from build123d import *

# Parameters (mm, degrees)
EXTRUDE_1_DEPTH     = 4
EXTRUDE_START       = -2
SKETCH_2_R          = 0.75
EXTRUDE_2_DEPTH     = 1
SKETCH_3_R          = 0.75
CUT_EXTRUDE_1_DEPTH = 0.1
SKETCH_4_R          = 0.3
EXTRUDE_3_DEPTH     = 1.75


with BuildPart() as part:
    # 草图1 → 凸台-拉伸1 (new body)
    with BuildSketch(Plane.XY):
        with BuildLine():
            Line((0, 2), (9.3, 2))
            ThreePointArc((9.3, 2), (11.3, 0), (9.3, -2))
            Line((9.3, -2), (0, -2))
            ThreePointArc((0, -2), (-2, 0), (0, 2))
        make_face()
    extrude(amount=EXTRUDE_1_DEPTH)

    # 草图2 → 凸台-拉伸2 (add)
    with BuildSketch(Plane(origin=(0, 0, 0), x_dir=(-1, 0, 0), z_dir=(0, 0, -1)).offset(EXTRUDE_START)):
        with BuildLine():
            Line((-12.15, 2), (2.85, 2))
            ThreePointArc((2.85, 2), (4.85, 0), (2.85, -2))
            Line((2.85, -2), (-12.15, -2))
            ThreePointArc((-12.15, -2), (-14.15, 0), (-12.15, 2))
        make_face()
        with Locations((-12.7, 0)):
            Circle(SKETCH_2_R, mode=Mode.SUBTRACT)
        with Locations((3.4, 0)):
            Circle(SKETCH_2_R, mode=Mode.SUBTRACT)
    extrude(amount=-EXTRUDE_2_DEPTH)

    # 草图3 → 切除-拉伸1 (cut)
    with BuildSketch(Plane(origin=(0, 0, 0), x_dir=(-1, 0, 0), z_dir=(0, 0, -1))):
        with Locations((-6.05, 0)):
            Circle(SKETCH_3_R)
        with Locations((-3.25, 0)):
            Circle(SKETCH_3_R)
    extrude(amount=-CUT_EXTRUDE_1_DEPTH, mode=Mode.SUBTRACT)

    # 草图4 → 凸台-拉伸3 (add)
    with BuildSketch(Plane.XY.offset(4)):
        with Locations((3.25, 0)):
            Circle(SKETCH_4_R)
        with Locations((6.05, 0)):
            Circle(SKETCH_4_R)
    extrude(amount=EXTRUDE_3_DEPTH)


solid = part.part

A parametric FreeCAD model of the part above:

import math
import FreeCAD as App
import Part
import Sketcher
Q = App.Units.Quantity

doc = App.newDocument("Part")
body = doc.addObject("PartDesign::Body", "Body")

# Sketch on XY plane
sketch1 = body.newObject("Sketcher::SketchObject", "Sketch")
sketch1.AttachmentSupport = (doc.getObject("XY_Plane"), [""])
sketch1.MapMode = "FlatFace"
sketch1.addGeometry(Part.LineSegment(App.Vector(9.3, 2, 0), App.Vector(0, 2, 0)), False)
sketch1.addGeometry(Part.ArcOfCircle(Part.Circle(App.Vector(0, 0, 0), App.Vector(0, 0, 1), 2), math.radians(90), math.radians(270)), False)
sketch1.addGeometry(Part.LineSegment(App.Vector(0, -2, 0), App.Vector(9.3, -2, 0)), False)
sketch1.addGeometry(Part.ArcOfCircle(Part.Circle(App.Vector(9.3, 0, 0), App.Vector(0, 0, 1), 2), math.radians(-90), math.radians(90)), False)
sketch1.addConstraint(Sketcher.Constraint("Tangent", 0, 2, 1, 1))
sketch1.addConstraint(Sketcher.Constraint("Tangent", 1, 2, 2, 1))
sketch1.addConstraint(Sketcher.Constraint("Tangent", 2, 2, 3, 1))
sketch1.addConstraint(Sketcher.Constraint("Tangent", 3, 2, 0, 1))
sketch1.addConstraint(Sketcher.Constraint("Horizontal", 0))
sketch1.addConstraint(Sketcher.Constraint("Horizontal", 2))
sketch1.addConstraint(Sketcher.Constraint("Coincident", 1, 3, -1, 1))
sketch1.addConstraint(Sketcher.Constraint("Radius", 1, Q("2 mm")))
sketch1.addConstraint(Sketcher.Constraint("DistanceX", 0, 2, 0, 1, Q("9.3 mm")))
pad1 = body.newObject("PartDesign::Pad", "Pad")
pad1.Profile = sketch1
pad1.Length = 4

# Sketch on XY plane
sketch2 = body.newObject("Sketcher::SketchObject", "Sketch001")
sketch2.AttachmentSupport = (doc.getObject("XY_Plane"), [""])
sketch2.MapMode = "FlatFace"
sketch2.AttachmentOffset = App.Placement(App.Vector(0, 0, 2), App.Rotation())
sketch2.addGeometry(Part.LineSegment(App.Vector(-2.9, 2, 0), App.Vector(12.2, 2, 0)), False)
sketch2.addGeometry(Part.ArcOfCircle(Part.Circle(App.Vector(12.2, 0, 0), App.Vector(0, 0, 1), 2), math.radians(-90), math.radians(90)), False)
sketch2.addGeometry(Part.LineSegment(App.Vector(12.2, -2, 0), App.Vector(-2.9, -2, 0)), False)
sketch2.addGeometry(Part.ArcOfCircle(Part.Circle(App.Vector(-2.9, 0, 0), App.Vector(0, 0, 1), 2), math.radians(90), math.radians(270)), False)
sketch2.addGeometry(Part.Circle(App.Vector(-3.4, 0, 0), App.Vector(0, 0, 1), 0.8), False)
sketch2.addGeometry(Part.Circle(App.Vector(12.7, 0, 0), App.Vector(0, 0, 1), 0.8), False)
sketch2.addConstraint(Sketcher.Constraint("Tangent", 0, 2, 1, 2))
sketch2.addConstraint(Sketcher.Constraint("Tangent", 1, 1, 2, 1))
sketch2.addConstraint(Sketcher.Constraint("Tangent", 2, 2, 3, 2))
sketch2.addConstraint(Sketcher.Constraint("Tangent", 3, 1, 0, 1))
sketch2.addConstraint(Sketcher.Constraint("Horizontal", 0))
sketch2.addConstraint(Sketcher.Constraint("Horizontal", 2))
sketch2.addConstraint(Sketcher.Constraint("Equal", 4, 5))
sketch2.addConstraint(Sketcher.Constraint("PointOnObject", 1, 3, -1))
sketch2.addConstraint(Sketcher.Constraint("PointOnObject", 4, 3, -1))
sketch2.addConstraint(Sketcher.Constraint("PointOnObject", 5, 3, -1))
sketch2.addConstraint(Sketcher.Constraint("Radius", 1, Q("2 mm")))
sketch2.addConstraint(Sketcher.Constraint("Diameter", 4, Q("1.5 mm")))
sketch2.addConstraint(Sketcher.Constraint("DistanceX", 0, 1, 0, 2, Q("15 mm")))
sketch2.addConstraint(Sketcher.Constraint("DistanceX", 4, 3, -1, 1, Q("3.4 mm")))
sketch2.addConstraint(Sketcher.Constraint("DistanceX", -1, 1, 5, 3, Q("12.7 mm")))
sketch2.addConstraint(Sketcher.Constraint("DistanceX", -1, 1, 1, 3, Q("12.15 mm")))
pad2 = body.newObject("PartDesign::Pad", "Pad001")
pad2.Profile = sketch2
pad2.Length = 1

# Sketch on XY plane
sketch3 = body.newObject("Sketcher::SketchObject", "Sketch002")
sketch3.AttachmentSupport = (doc.getObject("XY_Plane"), [""])
sketch3.MapMode = "FlatFace"
sketch3.addGeometry(Part.Circle(App.Vector(6, 0, 0), App.Vector(0, 0, 1), 0.8), False)
sketch3.addGeometry(Part.Circle(App.Vector(3.2, 0, 0), App.Vector(0, 0, 1), 0.8), False)
sketch3.addConstraint(Sketcher.Constraint("Equal", 0, 1))
sketch3.addConstraint(Sketcher.Constraint("PointOnObject", 0, 3, -1))
sketch3.addConstraint(Sketcher.Constraint("PointOnObject", 1, 3, -1))
sketch3.addConstraint(Sketcher.Constraint("Diameter", 0, Q("1.5 mm")))
sketch3.addConstraint(Sketcher.Constraint("DistanceX", 1, 3, 0, 3, Q("2.8 mm")))
sketch3.addConstraint(Sketcher.Constraint("DistanceX", -1, 1, 0, 3, Q("6.05 mm")))
pocket1 = body.newObject("PartDesign::Pocket", "Pocket")
pocket1.Profile = sketch3
pocket1.Length = 0.1
pocket1.Reversed = True

# Sketch on XY plane
sketch4 = body.newObject("Sketcher::SketchObject", "Sketch003")
sketch4.AttachmentSupport = (doc.getObject("XY_Plane"), [""])
sketch4.MapMode = "FlatFace"
sketch4.AttachmentOffset = App.Placement(App.Vector(0, 0, 4), App.Rotation())
sketch4.addGeometry(Part.Circle(App.Vector(3.25, 0, 0), App.Vector(0, 0, 1), 0.3), False)
sketch4.addGeometry(Part.Circle(App.Vector(6.05, 0, 0), App.Vector(0, 0, 1), 0.3), False)
sketch4.addConstraint(Sketcher.Constraint("Equal", 0, 1))
sketch4.addConstraint(Sketcher.Constraint("PointOnObject", 0, 3, -1))
sketch4.addConstraint(Sketcher.Constraint("PointOnObject", 1, 3, -1))
sketch4.addConstraint(Sketcher.Constraint("Diameter", 0, Q("0.6 mm")))
sketch4.addConstraint(Sketcher.Constraint("DistanceX", 0, 3, 1, 3, Q("2.8 mm")))
sketch4.addConstraint(Sketcher.Constraint("DistanceX", -1, 1, 0, 3, Q("3.25 mm")))
pad3 = body.newObject("PartDesign::Pad", "Pad002")
pad3.Profile = sketch4
pad3.Length = 1.75

doc.recompute()
